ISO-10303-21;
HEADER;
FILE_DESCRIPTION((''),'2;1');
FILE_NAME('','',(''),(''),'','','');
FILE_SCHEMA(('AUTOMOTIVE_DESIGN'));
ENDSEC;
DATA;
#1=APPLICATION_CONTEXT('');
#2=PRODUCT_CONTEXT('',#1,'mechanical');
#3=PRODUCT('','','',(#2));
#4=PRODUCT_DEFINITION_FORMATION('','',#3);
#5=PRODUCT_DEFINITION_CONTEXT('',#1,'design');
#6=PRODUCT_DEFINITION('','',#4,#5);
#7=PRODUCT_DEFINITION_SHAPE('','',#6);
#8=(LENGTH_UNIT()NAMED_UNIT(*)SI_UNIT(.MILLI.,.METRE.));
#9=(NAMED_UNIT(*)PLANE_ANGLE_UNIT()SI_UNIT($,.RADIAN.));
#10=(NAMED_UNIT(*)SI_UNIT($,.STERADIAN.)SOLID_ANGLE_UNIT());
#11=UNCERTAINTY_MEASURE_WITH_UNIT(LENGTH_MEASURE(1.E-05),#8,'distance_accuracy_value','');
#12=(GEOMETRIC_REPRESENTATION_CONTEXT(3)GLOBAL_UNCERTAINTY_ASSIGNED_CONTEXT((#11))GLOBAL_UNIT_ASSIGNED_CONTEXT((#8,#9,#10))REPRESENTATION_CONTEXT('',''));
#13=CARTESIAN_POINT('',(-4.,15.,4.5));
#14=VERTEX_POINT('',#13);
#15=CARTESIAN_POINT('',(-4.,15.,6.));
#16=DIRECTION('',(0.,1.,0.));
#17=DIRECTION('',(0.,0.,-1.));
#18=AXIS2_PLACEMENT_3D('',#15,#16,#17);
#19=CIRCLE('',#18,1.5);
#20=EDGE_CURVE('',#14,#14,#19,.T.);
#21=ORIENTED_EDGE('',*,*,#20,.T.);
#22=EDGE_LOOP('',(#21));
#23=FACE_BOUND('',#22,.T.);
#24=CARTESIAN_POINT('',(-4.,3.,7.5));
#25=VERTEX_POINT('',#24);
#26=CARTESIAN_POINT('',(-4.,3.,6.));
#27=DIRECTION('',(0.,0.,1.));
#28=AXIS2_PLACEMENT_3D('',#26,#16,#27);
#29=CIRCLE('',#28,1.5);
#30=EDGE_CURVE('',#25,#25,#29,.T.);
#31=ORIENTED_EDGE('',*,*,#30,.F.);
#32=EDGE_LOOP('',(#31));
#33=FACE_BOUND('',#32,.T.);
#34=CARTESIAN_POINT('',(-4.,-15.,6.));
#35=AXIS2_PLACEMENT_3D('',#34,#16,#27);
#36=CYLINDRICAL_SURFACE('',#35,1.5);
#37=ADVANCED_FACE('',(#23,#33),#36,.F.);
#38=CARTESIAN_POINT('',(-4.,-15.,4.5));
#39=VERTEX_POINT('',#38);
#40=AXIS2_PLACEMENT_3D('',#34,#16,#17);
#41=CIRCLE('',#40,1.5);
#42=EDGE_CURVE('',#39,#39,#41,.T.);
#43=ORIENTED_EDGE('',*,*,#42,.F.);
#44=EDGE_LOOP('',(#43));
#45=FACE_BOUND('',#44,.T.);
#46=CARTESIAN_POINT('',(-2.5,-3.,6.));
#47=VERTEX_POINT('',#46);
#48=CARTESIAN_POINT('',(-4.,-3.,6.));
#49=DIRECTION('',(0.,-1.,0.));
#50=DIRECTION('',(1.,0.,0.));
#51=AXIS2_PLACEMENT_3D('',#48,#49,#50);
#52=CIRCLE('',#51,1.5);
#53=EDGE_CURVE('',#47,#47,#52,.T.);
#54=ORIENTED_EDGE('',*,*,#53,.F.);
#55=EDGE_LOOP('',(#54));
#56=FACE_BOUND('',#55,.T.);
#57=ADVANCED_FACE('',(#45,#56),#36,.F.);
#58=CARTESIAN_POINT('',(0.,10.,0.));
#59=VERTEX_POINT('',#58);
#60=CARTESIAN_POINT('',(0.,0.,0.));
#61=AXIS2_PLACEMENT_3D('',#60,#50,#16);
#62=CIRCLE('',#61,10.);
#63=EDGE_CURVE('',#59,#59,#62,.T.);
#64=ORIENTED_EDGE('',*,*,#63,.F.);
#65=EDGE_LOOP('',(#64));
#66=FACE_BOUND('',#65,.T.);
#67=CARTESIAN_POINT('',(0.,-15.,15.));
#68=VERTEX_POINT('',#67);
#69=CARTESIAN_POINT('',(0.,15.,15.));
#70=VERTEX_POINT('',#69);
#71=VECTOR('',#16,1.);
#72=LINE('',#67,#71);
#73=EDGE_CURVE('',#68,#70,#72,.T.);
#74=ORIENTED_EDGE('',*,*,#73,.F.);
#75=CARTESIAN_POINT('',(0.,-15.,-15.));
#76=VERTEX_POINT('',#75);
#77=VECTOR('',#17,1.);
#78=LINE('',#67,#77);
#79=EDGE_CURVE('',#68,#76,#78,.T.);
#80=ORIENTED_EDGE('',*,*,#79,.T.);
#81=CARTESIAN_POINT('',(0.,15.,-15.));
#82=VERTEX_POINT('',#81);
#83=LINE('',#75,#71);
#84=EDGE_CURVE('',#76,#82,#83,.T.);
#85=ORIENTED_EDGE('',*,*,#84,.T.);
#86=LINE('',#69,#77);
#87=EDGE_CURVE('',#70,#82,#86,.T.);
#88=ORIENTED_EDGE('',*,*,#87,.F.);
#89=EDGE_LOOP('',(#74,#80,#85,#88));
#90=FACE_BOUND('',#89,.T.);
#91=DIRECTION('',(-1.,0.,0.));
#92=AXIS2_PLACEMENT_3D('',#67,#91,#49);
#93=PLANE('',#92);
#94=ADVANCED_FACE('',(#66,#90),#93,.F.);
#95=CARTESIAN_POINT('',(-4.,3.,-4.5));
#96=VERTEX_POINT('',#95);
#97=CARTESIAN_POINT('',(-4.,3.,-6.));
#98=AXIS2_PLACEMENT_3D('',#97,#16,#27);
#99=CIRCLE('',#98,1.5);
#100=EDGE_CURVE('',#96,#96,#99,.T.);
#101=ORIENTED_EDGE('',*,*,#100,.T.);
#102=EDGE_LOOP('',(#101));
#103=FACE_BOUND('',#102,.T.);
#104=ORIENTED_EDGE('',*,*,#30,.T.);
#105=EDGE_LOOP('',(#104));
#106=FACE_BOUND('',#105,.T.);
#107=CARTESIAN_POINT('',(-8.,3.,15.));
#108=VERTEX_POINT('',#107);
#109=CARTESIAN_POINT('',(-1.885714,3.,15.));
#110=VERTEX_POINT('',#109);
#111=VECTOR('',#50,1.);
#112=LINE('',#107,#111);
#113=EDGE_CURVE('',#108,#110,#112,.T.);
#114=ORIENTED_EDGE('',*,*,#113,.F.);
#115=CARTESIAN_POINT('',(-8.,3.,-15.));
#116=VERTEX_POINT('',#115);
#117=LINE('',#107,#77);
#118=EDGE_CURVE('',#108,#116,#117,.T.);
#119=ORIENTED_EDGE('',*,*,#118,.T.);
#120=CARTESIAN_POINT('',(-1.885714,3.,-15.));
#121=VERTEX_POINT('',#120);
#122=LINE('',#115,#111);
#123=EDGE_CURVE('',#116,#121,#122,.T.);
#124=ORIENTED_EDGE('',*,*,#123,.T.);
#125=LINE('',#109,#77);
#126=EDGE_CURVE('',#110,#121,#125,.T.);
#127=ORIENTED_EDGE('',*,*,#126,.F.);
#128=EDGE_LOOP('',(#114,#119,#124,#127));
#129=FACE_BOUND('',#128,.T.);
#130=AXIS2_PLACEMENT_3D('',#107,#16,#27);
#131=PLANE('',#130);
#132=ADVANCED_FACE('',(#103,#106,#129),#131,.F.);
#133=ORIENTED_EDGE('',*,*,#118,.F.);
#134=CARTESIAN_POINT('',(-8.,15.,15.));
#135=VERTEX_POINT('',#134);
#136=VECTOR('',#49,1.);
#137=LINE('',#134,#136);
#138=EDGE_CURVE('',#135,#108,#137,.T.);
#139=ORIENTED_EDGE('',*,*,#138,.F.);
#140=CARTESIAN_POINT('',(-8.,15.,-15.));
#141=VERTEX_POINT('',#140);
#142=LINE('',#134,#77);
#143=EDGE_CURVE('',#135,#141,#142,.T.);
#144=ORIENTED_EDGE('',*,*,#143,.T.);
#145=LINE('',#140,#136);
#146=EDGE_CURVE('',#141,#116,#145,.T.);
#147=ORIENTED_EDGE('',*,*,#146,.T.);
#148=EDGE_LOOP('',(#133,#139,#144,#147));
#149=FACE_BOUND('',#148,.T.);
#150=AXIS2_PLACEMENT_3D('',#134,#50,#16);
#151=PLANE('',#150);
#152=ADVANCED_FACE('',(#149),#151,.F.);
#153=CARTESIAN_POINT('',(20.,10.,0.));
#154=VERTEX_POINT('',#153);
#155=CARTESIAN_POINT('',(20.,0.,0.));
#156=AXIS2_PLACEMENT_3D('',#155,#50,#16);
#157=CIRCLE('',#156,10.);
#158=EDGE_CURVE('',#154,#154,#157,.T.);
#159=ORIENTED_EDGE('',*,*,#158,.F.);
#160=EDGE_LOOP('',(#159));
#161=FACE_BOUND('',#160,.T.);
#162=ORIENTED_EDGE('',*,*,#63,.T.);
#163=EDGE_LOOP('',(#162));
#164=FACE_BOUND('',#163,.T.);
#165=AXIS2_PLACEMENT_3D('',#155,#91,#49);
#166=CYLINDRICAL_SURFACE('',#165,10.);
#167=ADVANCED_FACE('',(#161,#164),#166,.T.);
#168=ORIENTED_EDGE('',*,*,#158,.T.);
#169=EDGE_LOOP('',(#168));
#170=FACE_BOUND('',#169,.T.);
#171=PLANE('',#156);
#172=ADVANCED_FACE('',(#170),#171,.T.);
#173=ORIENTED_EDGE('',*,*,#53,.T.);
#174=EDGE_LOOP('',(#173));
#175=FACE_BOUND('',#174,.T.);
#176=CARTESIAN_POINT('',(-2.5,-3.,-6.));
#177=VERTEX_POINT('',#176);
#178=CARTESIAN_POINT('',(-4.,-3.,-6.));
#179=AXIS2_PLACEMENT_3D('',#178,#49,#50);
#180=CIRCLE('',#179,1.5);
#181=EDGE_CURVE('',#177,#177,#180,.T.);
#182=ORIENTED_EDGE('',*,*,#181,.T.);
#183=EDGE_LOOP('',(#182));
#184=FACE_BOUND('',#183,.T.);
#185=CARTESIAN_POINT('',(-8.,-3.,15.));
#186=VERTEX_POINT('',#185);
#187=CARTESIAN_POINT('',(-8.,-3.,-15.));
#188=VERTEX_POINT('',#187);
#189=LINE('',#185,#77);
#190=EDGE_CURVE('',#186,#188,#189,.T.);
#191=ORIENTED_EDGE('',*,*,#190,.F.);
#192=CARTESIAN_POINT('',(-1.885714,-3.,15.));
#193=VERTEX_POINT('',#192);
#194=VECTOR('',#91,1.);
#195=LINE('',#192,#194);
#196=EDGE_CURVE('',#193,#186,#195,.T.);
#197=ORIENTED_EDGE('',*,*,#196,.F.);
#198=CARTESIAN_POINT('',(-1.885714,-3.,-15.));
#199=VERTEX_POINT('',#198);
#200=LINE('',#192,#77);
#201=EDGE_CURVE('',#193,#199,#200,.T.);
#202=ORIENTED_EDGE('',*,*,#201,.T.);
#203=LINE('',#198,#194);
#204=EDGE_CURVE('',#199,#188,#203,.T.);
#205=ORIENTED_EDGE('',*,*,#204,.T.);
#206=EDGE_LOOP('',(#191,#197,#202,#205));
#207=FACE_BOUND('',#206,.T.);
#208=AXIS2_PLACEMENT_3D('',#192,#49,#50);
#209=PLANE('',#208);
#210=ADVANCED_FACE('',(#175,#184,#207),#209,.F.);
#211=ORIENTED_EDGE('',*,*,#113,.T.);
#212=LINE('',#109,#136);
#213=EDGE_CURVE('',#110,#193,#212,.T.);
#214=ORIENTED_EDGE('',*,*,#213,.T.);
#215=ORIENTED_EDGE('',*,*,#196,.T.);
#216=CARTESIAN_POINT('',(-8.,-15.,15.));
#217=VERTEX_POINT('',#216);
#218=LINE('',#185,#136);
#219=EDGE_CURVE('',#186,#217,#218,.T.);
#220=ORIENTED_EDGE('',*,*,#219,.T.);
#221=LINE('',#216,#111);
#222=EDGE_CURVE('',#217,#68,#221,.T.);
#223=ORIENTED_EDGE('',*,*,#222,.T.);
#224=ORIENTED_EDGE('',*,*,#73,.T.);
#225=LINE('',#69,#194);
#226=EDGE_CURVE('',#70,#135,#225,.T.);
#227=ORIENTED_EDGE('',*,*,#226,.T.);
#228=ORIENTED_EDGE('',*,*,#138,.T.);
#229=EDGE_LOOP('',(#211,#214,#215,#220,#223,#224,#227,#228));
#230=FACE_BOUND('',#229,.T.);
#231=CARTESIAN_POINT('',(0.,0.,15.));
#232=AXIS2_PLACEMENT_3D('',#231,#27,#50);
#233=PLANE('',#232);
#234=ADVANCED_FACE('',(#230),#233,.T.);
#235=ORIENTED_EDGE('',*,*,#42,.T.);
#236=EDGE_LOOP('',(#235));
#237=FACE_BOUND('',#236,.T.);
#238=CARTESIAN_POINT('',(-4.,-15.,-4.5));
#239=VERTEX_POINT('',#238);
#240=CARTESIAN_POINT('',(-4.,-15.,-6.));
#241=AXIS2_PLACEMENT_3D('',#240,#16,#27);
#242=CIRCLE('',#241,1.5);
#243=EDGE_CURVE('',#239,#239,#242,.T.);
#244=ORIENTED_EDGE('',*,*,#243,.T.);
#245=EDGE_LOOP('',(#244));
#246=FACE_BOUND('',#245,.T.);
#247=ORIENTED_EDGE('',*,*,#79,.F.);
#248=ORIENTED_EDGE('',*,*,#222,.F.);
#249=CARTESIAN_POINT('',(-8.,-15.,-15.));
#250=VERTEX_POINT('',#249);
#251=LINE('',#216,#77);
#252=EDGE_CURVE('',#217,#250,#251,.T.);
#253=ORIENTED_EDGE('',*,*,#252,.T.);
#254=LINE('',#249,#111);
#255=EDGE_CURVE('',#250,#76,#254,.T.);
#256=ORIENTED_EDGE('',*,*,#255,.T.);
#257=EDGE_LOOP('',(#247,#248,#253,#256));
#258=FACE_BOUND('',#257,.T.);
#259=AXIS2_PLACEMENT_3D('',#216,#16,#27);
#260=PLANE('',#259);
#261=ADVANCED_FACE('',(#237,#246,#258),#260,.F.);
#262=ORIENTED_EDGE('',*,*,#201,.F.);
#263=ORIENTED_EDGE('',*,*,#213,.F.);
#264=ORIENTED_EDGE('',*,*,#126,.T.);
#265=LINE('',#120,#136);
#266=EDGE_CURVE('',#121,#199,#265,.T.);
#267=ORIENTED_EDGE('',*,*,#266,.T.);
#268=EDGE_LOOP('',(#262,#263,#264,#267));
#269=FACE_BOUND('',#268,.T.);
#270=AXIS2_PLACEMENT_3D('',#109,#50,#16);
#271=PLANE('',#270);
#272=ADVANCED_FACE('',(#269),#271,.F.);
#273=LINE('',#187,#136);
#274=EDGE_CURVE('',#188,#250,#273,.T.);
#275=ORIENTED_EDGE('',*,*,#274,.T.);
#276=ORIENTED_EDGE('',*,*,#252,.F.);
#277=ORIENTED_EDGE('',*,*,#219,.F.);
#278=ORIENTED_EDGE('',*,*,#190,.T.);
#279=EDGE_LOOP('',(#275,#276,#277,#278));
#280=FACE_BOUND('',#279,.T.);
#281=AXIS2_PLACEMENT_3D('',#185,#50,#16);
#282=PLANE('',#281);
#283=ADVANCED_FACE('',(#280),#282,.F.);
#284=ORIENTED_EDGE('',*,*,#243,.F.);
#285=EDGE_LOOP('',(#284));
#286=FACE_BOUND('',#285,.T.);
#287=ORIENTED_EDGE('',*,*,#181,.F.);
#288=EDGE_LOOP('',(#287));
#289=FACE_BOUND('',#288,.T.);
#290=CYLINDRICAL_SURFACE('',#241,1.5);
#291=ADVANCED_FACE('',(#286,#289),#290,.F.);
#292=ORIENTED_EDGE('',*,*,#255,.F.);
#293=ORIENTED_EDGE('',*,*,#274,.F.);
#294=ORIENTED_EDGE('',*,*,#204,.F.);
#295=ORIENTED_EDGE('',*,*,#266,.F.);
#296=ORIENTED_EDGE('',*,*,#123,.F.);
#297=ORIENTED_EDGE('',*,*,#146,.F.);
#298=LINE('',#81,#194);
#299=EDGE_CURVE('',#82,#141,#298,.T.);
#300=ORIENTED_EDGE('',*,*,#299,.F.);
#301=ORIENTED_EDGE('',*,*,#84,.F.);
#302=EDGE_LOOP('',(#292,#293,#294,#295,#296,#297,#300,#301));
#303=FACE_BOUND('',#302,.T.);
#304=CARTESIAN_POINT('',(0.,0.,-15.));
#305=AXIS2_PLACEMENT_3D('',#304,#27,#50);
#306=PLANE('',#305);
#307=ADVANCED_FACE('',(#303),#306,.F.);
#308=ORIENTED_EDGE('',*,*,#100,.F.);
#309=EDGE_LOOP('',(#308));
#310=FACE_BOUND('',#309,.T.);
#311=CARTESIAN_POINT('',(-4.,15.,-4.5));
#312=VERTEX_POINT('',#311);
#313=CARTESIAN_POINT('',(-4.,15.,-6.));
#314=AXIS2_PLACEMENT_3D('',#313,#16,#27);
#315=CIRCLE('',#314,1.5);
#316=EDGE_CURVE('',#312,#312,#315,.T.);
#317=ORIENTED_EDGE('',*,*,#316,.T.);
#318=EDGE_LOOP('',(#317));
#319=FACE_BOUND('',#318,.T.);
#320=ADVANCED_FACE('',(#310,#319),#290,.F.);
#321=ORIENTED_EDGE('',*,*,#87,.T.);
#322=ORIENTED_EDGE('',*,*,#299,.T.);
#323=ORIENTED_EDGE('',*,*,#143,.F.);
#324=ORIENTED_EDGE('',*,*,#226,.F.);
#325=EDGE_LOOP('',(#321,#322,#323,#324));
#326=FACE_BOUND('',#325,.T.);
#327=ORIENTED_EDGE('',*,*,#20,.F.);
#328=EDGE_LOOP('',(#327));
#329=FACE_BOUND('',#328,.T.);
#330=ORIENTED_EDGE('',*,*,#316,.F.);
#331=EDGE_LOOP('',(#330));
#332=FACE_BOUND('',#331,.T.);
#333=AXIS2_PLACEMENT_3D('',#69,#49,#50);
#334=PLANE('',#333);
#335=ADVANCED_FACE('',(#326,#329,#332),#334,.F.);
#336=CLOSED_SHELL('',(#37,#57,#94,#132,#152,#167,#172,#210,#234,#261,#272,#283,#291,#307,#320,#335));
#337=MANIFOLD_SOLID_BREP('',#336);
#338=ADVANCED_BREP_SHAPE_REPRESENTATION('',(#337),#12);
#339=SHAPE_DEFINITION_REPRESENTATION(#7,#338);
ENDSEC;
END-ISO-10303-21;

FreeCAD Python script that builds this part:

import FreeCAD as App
import Part
import Sketcher

V = App.Vector


def add_polygon(sketch, points):
    """Adds a closed chain of lines whose ends are joined by coincident constraints."""
    first, n = sketch.GeometryCount, len(points)
    for a, b in zip(points, points[1:] + points[:1]):
        sketch.addGeometry(Part.LineSegment(App.Vector(*a, 0), App.Vector(*b, 0)), False)
    for i in range(n):
        sketch.addConstraint(Sketcher.Constraint("Coincident", first + i, 2, first + (i + 1) % n, 1))

doc = App.newDocument("Part")
params = doc.addObject("Spreadsheet::Sheet", "Params")
for row, (alias, value) in enumerate([
    ("sketch1_width", "8 mm"),
    ("sketch1_height", "30 mm"),
    ("sketch1_height2", "12 mm"),
    ("pad1_length", "30 mm"),
    ("sketch2_diameter", "3 mm"),
    ("sketch3_diameter", "20 mm"),
    ("pad2_length", "20 mm"),
], start=1):
    params.set(f"A{row}", alias)
    params.set(f"B{row}", "=" + value)
    params.setAlias(f"B{row}", alias)

body = doc.addObject("PartDesign::Body", "Body")

sketch1 = body.newObject("Sketcher::SketchObject", "Sketch")
sketch1.AttachmentSupport = (doc.getObject("XY_Plane"), [""])
sketch1.MapMode = "FlatFace"
add_polygon(sketch1, [(0, -15), (0, 15), (-8, 15), (-8, 3), (-1.885714, 3), (-1.885714, -3), (-8, -3), (-8, -15)])
sketch1.addConstraint(Sketcher.Constraint("Vertical", 0))
sketch1.addConstraint(Sketcher.Constraint("Horizontal", 1))
sketch1.addConstraint(Sketcher.Constraint("Vertical", 2))
sketch1.addConstraint(Sketcher.Constraint("Horizontal", 3))
sketch1.addConstraint(Sketcher.Constraint("Vertical", 4))
sketch1.addConstraint(Sketcher.Constraint("Horizontal", 5))
sketch1.addConstraint(Sketcher.Constraint("Vertical", 6))
sketch1.addConstraint(Sketcher.Constraint("Horizontal", 7))
sketch1.addConstraint(Sketcher.Constraint("Symmetric", 0, 2, 7, 2, -1, 1))
sketch1.addConstraint(Sketcher.Constraint("Symmetric", 2, 2, 5, 2, -1))
sketch1.addConstraint(Sketcher.Constraint("DistanceX", 1, 2, 1, 1, 8.0))
sketch1.addConstraint(Sketcher.Constraint("DistanceY", 0, 1, 0, 2, 30.0))
sketch1.addConstraint(Sketcher.Constraint("DistanceY", 2, 2, 2, 1, 12.0))
sketch1.addConstraint(Sketcher.Constraint("DistanceX", 3, 1, 3, 2, 6.114286))
sketch1.setExpression("Constraints[18]", "Params.sketch1_width")
sketch1.setExpression("Constraints[19]", "Params.sketch1_height")
sketch1.setExpression("Constraints[20]", "Params.sketch1_height2")
pad1 = body.newObject("PartDesign::Pad", "Pad")
pad1.Profile = sketch1
pad1.setExpression("Length", "Params.pad1_length")
pad1.Midplane = True

sketch2 = body.newObject("Sketcher::SketchObject", "Sketch001")
sketch2.AttachmentSupport = (doc.getObject("XZ_Plane"), [""])
sketch2.MapMode = "FlatFace"
sketch2.AttachmentOffset = App.Placement(V(0, 0, -15), App.Rotation())
sketch2.addGeometry(Part.Circle(V(-4, -6, 0), V(0, 0, 1), 1.5), False)
sketch2.addGeometry(Part.Circle(V(-4, 6, 0), V(0, 0, 1), 1.5), False)
sketch2.addConstraint(Sketcher.Constraint("Equal", 0, 1))
sketch2.addConstraint(Sketcher.Constraint("Symmetric", 0, 3, 1, 3, -1))
sketch2.addConstraint(Sketcher.Constraint("Diameter", 0, 3.0))
sketch2.addConstraint(Sketcher.Constraint("DistanceX", 0, 3, -1, 1, 4.0))
sketch2.addConstraint(Sketcher.Constraint("DistanceY", 0, 3, -1, 1, 6.0))
sketch2.setExpression("Constraints[2]", "Params.sketch2_diameter")
pocket1 = body.newObject("PartDesign::Pocket", "Pocket")
pocket1.Profile = sketch2
pocket1.Type = "ThroughAll"
pocket1.Reversed = True

sketch3 = body.newObject("Sketcher::SketchObject", "Sketch002")
sketch3.AttachmentSupport = (doc.getObject("YZ_Plane"), [""])
sketch3.MapMode = "FlatFace"
sketch3.addGeometry(Part.Circle(V(0, 0, 0), V(0, 0, 1), 10), False)
sketch3.addConstraint(Sketcher.Constraint("Coincident", 0, 3, -1, 1))
sketch3.addConstraint(Sketcher.Constraint("Diameter", 0, 20.0))
sketch3.setExpression("Constraints[1]", "Params.sketch3_diameter")
pad2 = body.newObject("PartDesign::Pad", "Pad001")
pad2.Profile = sketch3
pad2.setExpression("Length", "Params.pad2_length")

doc.recompute()
